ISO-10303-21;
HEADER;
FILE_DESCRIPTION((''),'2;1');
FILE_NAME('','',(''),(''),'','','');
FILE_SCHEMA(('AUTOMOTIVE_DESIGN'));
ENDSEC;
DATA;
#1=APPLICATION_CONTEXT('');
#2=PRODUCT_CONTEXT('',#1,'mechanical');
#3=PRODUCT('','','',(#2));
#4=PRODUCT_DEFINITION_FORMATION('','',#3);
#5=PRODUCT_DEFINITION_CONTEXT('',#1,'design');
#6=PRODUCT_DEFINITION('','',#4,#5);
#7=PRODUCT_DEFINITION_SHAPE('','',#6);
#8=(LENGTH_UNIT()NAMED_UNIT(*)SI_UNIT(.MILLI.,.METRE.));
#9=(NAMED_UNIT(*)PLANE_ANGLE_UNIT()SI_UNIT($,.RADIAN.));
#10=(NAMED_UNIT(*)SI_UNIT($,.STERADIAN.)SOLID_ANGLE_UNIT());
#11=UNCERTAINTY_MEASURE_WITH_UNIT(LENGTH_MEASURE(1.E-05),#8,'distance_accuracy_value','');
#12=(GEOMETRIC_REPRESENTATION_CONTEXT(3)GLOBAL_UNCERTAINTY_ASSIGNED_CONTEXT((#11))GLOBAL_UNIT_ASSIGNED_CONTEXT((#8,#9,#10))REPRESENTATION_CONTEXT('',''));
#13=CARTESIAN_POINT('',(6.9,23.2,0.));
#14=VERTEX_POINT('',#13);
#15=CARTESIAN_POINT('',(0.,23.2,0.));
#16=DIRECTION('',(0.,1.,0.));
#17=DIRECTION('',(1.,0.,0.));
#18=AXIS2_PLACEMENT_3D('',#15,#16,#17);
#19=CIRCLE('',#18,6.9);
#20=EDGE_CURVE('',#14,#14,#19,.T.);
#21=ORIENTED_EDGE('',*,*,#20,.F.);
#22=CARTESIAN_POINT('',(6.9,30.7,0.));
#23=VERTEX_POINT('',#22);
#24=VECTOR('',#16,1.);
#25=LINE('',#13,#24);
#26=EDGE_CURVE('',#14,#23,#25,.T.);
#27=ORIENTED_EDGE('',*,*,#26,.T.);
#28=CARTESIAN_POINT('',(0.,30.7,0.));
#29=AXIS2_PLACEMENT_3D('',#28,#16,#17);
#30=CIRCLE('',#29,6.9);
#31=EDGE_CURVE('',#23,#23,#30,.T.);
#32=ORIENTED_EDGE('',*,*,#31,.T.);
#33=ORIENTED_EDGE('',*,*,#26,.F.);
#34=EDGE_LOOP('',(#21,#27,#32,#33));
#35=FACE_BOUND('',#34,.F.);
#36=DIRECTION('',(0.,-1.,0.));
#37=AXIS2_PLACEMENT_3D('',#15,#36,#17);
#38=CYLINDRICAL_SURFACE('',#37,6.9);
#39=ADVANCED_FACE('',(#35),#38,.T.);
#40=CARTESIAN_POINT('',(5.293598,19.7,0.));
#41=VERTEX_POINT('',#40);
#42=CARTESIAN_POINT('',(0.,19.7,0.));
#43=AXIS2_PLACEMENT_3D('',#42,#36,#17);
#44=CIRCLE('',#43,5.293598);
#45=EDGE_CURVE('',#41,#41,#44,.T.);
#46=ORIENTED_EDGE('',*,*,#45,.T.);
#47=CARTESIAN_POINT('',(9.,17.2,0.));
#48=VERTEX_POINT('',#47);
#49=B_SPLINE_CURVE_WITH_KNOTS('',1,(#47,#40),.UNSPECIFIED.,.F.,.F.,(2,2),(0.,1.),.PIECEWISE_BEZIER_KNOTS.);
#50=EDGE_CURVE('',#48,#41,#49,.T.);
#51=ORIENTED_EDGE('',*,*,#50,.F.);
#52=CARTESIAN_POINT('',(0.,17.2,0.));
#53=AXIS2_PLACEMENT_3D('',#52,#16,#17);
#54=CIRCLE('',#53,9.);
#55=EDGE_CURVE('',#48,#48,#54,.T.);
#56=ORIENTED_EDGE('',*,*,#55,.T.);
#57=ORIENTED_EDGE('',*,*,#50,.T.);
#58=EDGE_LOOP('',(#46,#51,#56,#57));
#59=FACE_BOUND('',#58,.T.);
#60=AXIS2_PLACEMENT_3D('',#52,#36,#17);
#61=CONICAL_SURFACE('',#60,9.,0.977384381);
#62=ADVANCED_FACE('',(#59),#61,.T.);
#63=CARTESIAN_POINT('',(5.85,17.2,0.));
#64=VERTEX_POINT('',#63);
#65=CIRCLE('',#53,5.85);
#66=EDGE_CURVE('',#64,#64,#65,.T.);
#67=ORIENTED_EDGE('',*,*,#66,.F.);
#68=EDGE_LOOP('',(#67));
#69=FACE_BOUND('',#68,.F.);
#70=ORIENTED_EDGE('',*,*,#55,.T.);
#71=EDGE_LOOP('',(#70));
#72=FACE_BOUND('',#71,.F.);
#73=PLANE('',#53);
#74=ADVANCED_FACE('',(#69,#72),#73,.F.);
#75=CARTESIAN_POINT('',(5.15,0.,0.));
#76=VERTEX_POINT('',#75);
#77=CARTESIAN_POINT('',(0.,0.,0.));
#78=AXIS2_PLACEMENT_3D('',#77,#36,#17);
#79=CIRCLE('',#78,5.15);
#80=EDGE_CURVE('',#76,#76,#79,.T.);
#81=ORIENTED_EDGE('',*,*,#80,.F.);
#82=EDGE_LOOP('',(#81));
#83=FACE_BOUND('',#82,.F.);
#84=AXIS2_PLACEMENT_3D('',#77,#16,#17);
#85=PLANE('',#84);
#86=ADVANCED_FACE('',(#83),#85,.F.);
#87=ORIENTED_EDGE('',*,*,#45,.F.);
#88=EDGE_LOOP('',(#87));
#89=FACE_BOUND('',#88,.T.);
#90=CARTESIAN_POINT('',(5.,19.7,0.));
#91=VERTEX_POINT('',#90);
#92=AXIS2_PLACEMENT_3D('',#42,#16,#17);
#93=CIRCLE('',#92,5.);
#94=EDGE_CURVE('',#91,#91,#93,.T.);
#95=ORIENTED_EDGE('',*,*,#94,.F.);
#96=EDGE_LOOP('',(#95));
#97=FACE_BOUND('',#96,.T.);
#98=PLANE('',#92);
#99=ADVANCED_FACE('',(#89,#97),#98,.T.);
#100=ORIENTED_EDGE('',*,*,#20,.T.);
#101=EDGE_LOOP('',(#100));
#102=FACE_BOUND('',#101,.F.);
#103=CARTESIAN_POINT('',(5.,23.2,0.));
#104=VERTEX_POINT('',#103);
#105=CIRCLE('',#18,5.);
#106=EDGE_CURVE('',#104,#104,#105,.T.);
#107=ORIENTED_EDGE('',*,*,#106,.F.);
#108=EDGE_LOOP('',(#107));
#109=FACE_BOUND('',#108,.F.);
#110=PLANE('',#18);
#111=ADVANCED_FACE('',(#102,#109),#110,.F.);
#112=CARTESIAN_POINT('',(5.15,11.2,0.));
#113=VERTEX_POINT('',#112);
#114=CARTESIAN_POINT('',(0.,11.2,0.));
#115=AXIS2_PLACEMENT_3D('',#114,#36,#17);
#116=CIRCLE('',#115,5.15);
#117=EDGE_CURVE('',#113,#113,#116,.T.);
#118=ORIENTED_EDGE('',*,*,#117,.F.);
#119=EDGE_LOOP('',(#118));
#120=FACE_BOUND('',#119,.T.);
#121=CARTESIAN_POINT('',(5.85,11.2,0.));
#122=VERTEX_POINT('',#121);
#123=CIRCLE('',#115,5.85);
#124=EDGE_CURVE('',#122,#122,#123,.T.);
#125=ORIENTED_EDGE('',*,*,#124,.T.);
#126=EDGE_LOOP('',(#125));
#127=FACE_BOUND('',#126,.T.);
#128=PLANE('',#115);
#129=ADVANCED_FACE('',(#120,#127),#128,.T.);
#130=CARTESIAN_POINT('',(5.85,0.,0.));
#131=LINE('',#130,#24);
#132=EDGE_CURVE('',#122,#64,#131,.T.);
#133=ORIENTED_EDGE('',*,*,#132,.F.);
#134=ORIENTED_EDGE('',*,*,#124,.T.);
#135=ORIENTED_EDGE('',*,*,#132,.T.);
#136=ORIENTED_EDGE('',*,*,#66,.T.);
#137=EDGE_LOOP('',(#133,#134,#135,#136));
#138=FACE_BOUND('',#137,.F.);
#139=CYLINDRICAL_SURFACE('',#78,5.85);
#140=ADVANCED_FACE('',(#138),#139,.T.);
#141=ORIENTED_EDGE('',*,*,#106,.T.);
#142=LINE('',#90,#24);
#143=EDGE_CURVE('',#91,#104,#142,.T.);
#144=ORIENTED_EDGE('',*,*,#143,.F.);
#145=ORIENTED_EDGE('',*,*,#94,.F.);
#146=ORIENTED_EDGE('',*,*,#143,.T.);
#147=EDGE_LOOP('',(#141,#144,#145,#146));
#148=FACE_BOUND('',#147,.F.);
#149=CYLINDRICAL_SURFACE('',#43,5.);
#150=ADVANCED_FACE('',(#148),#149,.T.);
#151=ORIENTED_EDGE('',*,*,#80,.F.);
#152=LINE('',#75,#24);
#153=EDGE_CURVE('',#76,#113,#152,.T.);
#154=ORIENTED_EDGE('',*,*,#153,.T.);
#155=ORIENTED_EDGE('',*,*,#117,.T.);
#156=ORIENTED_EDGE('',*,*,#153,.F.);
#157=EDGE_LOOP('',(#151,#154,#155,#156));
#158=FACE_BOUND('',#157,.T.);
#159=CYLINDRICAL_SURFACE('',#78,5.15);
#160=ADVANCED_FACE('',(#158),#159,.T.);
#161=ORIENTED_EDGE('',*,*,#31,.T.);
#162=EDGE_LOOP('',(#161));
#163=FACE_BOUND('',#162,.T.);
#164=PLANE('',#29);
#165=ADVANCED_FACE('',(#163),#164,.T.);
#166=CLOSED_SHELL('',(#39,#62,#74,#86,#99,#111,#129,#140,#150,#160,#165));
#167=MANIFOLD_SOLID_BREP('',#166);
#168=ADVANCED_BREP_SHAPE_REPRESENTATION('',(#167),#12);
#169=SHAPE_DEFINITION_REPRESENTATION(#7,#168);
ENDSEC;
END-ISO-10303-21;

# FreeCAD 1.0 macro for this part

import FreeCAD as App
import Part
import Sketcher

V = App.Vector

doc = App.newDocument("Part")
params = doc.addObject("Spreadsheet::Sheet", "Params")
for row, (alias, value) in enumerate([
    ("sketch1_diameter", "11.7 mm"),
    ("pad1_length", "17.2 mm"),
    ("sketch2_diameter", "18 mm"),
    ("pad2_length", "2.5 mm"),
    ("pad2_taper", "-56 deg"),
    ("sketch3_diameter", "10 mm"),
    ("pad3_length", "3.5 mm"),
    ("sketch4_diameter", "13.8 mm"),
    ("pad4_length", "7.5 mm"),
    ("sketch5_diameter", "10.3 mm"),
    ("pocket1_length", "11.2 mm"),
], start=1):
    params.set(f"A{row}", alias)
    params.set(f"B{row}", "=" + value)
    params.setAlias(f"B{row}", alias)

body = doc.addObject("PartDesign::Body", "Body")

# Sketch on XZ plane
sketch1 = doc.addObject("Sketcher::SketchObject", "Sketch")
body.addObject(sketch1)
sketch1.AttachmentSupport = (doc.XZ_Plane, [""])
sketch1.MapMode = "FlatFace"
sketch1.addGeometry(Part.Circle(V(0, 0, 0), V(0, 0, 1), 6), False)
sketch1.addConstraint(Sketcher.Constraint("Coincident", 0, 3, -1, 1))
sketch1.addConstraint(Sketcher.Constraint("Diameter", 0, 11.7))
sketch1.setExpression("Constraints[1]", "Params.sketch1_diameter")
pad1 = doc.addObject("PartDesign::Pad", "Pad")
body.addObject(pad1)
pad1.Profile = sketch1
pad1.setExpression("Length", "Params.pad1_length")
pad1.Reversed = True

# Sketch on XZ plane
sketch2 = doc.addObject("Sketcher::SketchObject", "Sketch001")
body.addObject(sketch2)
sketch2.AttachmentSupport = (doc.XZ_Plane, [""])
sketch2.MapMode = "FlatFace"
sketch2.AttachmentOffset = App.Placement(V(0, 0, -17.2), App.Rotation())
sketch2.addGeometry(Part.Circle(V(0, 0, 0), V(0, 0, 1), 9), False)
sketch2.addConstraint(Sketcher.Constraint("Coincident", 0, 3, -1, 1))
sketch2.addConstraint(Sketcher.Constraint("Diameter", 0, 18.0))
sketch2.setExpression("Constraints[1]", "Params.sketch2_diameter")
pad2 = doc.addObject("PartDesign::Pad", "Pad001")
body.addObject(pad2)
pad2.Profile = sketch2
pad2.setExpression("Length", "Params.pad2_length")
pad2.Reversed = True
pad2.setExpression("TaperAngle", "Params.pad2_taper")

# Sketch on XZ plane
sketch3 = doc.addObject("Sketcher::SketchObject", "Sketch002")
body.addObject(sketch3)
sketch3.AttachmentSupport = (doc.XZ_Plane, [""])
sketch3.MapMode = "FlatFace"
sketch3.AttachmentOffset = App.Placement(V(0, 0, -19.7), App.Rotation())
sketch3.addGeometry(Part.Circle(V(0, 0, 0), V(0, 0, 1), 5), False)
sketch3.addConstraint(Sketcher.Constraint("Coincident", 0, 3, -1, 1))
sketch3.addConstraint(Sketcher.Constraint("Diameter", 0, 10.0))
sketch3.setExpression("Constraints[1]", "Params.sketch3_diameter")
pad3 = doc.addObject("PartDesign::Pad", "Pad002")
body.addObject(pad3)
pad3.Profile = sketch3
pad3.setExpression("Length", "Params.pad3_length")
pad3.Reversed = True

# Sketch on XZ plane
sketch4 = doc.addObject("Sketcher::SketchObject", "Sketch003")
body.addObject(sketch4)
sketch4.AttachmentSupport = (doc.XZ_Plane, [""])
sketch4.MapMode = "FlatFace"
sketch4.AttachmentOffset = App.Placement(V(0, 0, -23.2), App.Rotation())
sketch4.addGeometry(Part.Circle(V(0, 0, 0), V(0, 0, 1), 7), False)
sketch4.addConstraint(Sketcher.Constraint("Coincident", 0, 3, -1, 1))
sketch4.addConstraint(Sketcher.Constraint("Diameter", 0, 13.8))
sketch4.setExpression("Constraints[1]", "Params.sketch4_diameter")
pad4 = doc.addObject("PartDesign::Pad", "Pad003")
body.addObject(pad4)
pad4.Profile = sketch4
pad4.setExpression("Length", "Params.pad4_length")
pad4.Reversed = True

# Sketch on XZ plane
sketch5 = doc.addObject("Sketcher::SketchObject", "Sketch004")
body.addObject(sketch5)
sketch5.AttachmentSupport = (doc.XZ_Plane, [""])
sketch5.MapMode = "FlatFace"
sketch5.addGeometry(Part.LineSegment(V(-14, 14, 0), V(-14, -14, 0)), False)
sketch5.addGeometry(Part.LineSegment(V(-14, -14, 0), V(14, -14, 0)), False)
sketch5.addGeometry(Part.LineSegment(V(14, -14, 0), V(14, 14, 0)), False)
sketch5.addGeometry(Part.LineSegment(V(14, 14, 0), V(-14, 14, 0)), False)
sketch5.addGeometry(Part.Circle(V(0, 0, 0), V(0, 0, 1), 5), False)
sketch5.addConstraint(Sketcher.Constraint("Coincident", 0, 2, 1, 1))
sketch5.addConstraint(Sketcher.Constraint("Coincident", 1, 2, 2, 1))
sketch5.addConstraint(Sketcher.Constraint("Coincident", 2, 2, 3, 1))
sketch5.addConstraint(Sketcher.Constraint("Coincident", 3, 2, 0, 1))
sketch5.addConstraint(Sketcher.Constraint("Vertical", 0))
sketch5.addConstraint(Sketcher.Constraint("Horizontal", 1))
sketch5.addConstraint(Sketcher.Constraint("Vertical", 2))
sketch5.addConstraint(Sketcher.Constraint("Horizontal", 3))
sketch5.addConstraint(Sketcher.Constraint("Coincident", 4, 3, -1, 1))
sketch5.addConstraint(Sketcher.Constraint("Symmetric", 0, 2, 2, 2, -1, 1))
sketch5.addConstraint(Sketcher.Constraint("Equal", 3, 0))
sketch5.addConstraint(Sketcher.Constraint("Diameter", 4, 10.3))
sketch5.addConstraint(Sketcher.Constraint("DistanceX", 1, 1, 1, 2, 27.976))
sketch5.setExpression("Constraints[11]", "Params.sketch5_diameter")
pocket1 = doc.addObject("PartDesign::Pocket", "Pocket")
body.addObject(pocket1)
pocket1.Profile = sketch5
pocket1.setExpression("Length", "Params.pocket1_length")

doc.recompute()
